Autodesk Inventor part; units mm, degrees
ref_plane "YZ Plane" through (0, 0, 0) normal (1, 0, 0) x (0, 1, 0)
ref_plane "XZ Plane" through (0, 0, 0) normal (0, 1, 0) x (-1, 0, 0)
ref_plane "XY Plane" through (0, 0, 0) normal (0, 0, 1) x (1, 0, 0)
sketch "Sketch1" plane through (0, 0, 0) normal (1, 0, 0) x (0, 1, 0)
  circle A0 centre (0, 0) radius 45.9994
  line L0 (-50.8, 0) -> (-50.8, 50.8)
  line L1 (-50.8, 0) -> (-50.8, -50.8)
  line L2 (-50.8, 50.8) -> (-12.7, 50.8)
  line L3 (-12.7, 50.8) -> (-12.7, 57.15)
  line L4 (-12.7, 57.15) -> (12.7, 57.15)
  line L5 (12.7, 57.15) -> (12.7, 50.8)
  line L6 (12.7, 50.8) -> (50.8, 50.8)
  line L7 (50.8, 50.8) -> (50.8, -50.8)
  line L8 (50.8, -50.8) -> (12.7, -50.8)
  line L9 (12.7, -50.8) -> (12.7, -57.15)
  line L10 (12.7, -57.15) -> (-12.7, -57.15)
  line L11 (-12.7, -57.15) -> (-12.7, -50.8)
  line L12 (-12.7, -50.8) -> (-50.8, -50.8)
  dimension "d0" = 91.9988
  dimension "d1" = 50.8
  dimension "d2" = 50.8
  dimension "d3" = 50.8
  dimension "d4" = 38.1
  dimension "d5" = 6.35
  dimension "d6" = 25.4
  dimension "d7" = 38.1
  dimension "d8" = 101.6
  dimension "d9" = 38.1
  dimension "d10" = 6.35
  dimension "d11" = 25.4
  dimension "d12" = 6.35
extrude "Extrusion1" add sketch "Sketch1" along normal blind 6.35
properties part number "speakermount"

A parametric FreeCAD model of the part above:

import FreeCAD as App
import Part
import Sketcher
from FreeCAD import Vector
Q = App.Units.Quantity


def add_polygon(sketch, points):
    """Adds a closed chain of lines whose ends are joined by coincident constraints."""
    first, n = sketch.GeometryCount, len(points)
    for a, b in zip(points, points[1:] + points[:1]):
        sketch.addGeometry(Part.LineSegment(App.Vector(*a, 0), App.Vector(*b, 0)), False)
    for i in range(n):
        sketch.addConstraint(Sketcher.Constraint("Coincident", first + i, 2, first + (i + 1) % n, 1))

doc = App.newDocument("Part")
body = doc.addObject("PartDesign::Body", "Body")

sketch1 = body.newObject("Sketcher::SketchObject", "Sketch")
sketch1.AttachmentSupport = (doc.getObject("YZ_Plane"), [""])
sketch1.MapMode = "FlatFace"
add_polygon(sketch1, [(-51, 51), (-51, -51), (-13, -51), (-13, -57), (13, -57), (13, -51), (51, -51), (51, 51), (13, 51), (13, 57), (-13, 57), (-13, 51)])
sketch1.addGeometry(Part.Circle(Vector(0, 0, 0), Vector(0, 0, 1), 46), False)
sketch1.addConstraint([
    Sketcher.Constraint("Vertical", 0),
    Sketcher.Constraint("Horizontal", 1),
    Sketcher.Constraint("Vertical", 2),
    Sketcher.Constraint("Horizontal", 3),
    Sketcher.Constraint("Vertical", 4),
    Sketcher.Constraint("Horizontal", 5),
    Sketcher.Constraint("Vertical", 6),
    Sketcher.Constraint("Horizontal", 7),
    Sketcher.Constraint("Vertical", 8),
    Sketcher.Constraint("Horizontal", 9),
    Sketcher.Constraint("Vertical", 10),
    Sketcher.Constraint("Horizontal", 11),
    Sketcher.Constraint("Coincident", 12, 3, -1, 1),
    Sketcher.Constraint("Symmetric", 0, 2, 6, 2, -1, 1),
    Sketcher.Constraint("Symmetric", 2, 2, 8, 2, -1, 1),
    Sketcher.Constraint("Symmetric", 4, 2, 10, 2, -1, 1),
    Sketcher.Constraint("Symmetric", 1, 2, 4, 2, -2),
    Sketcher.Constraint("DistanceX", 3, 1, 3, 2, Q("1 in")),
    Sketcher.Constraint("DistanceY", 0, 2, 0, 1, Q("4 in")),
    Sketcher.Constraint("Diameter", 12, Q("3.622 in")),
    Sketcher.Constraint("DistanceX", 1, 1, 1, 2, Q("1.5 in")),
    Sketcher.Constraint("DistanceY", 2, 2, 2, 1, Q("0.25 in")),
])
pad1 = body.newObject("PartDesign::Pad", "Pad")
pad1.Profile = sketch1
pad1.Length = Q("0.25 in")

doc.recompute()
